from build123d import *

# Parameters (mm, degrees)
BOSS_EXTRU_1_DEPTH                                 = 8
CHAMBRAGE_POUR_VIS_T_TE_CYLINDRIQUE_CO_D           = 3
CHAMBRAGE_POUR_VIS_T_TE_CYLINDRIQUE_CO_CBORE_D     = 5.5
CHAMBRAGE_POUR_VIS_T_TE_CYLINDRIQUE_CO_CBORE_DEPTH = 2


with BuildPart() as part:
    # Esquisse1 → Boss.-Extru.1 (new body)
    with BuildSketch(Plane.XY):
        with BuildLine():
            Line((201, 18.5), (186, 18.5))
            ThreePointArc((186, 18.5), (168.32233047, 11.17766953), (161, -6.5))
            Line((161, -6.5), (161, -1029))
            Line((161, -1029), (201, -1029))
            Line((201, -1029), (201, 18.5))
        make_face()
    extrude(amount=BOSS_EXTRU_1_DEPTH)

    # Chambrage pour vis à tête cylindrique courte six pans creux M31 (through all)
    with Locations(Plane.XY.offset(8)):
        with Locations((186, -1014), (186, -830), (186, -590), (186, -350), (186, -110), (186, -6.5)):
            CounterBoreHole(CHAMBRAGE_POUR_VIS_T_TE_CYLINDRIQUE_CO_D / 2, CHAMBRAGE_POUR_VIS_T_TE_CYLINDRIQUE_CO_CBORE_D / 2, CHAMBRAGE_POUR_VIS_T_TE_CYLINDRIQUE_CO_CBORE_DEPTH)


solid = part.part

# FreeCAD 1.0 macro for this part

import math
import FreeCAD as App
import Part
import Sketcher

V = App.Vector

doc = App.newDocument("Part")
params = doc.addObject("Spreadsheet::Sheet", "Params")
for row, (alias, value) in enumerate([
    ("sketch1_radius", "25 mm"),
    ("sketch1_width", "15 mm"),
    ("sketch1_height", "1022.5 mm"),
    ("pad1_length", "8 mm"),
    ("sketch2_diameter", "3 mm"),
    ("hole_diameter", "3 mm"),
    ("hole_cbore_diameter", "5.5 mm"),
    ("hole_cbore_depth", "2 mm"),
], start=1):
    params.set(f"A{row}", alias)
    params.set(f"B{row}", "=" + value)
    params.setAlias(f"B{row}", alias)

body = doc.addObject("PartDesign::Body", "Body")

# Sketch on XY plane
sketch1 = body.newObject("Sketcher::SketchObject", "Sketch")
sketch1.AttachmentSupport = (doc.getObject("XY_Plane"), [""])
sketch1.MapMode = "FlatFace"
sketch1.addGeometry(Part.LineSegment(V(201, 18, 0), V(186, 18, 0)), False)
sketch1.addGeometry(Part.ArcOfCircle(Part.Circle(V(186, -6, 0), V(0, 0, 1), 25), math.radians(90), math.radians(180)), False)
sketch1.addGeometry(Part.LineSegment(V(161, -6, 0), V(161, -1029, 0)), False)
sketch1.addGeometry(Part.LineSegment(V(161, -1029, 0), V(201, -1029, 0)), False)
sketch1.addGeometry(Part.LineSegment(V(201, -1029, 0), V(201, 18, 0)), False)
sketch1.addConstraint(Sketcher.Constraint("Tangent", 0, 2, 1, 1))
sketch1.addConstraint(Sketcher.Constraint("Tangent", 1, 2, 2, 1))
sketch1.addConstraint(Sketcher.Constraint("Coincident", 2, 2, 3, 1))
sketch1.addConstraint(Sketcher.Constraint("Coincident", 3, 2, 4, 1))
sketch1.addConstraint(Sketcher.Constraint("Coincident", 4, 2, 0, 1))
sketch1.addConstraint(Sketcher.Constraint("Horizontal", 0))
sketch1.addConstraint(Sketcher.Constraint("Vertical", 2))
sketch1.addConstraint(Sketcher.Constraint("Horizontal", 3))
sketch1.addConstraint(Sketcher.Constraint("Vertical", 4))
sketch1.addConstraint(Sketcher.Constraint("Radius", 1, 25.0))
sketch1.addConstraint(Sketcher.Constraint("DistanceX", 0, 2, 0, 1, 15.0))
sketch1.addConstraint(Sketcher.Constraint("DistanceY", 2, 2, 2, 1, 1022.5))
sketch1.addConstraint(Sketcher.Constraint("DistanceX", -1, 1, 1, 3, 186.0))
sketch1.addConstraint(Sketcher.Constraint("DistanceY", 2, 2, -1, 1, 1029.0))
sketch1.setExpression("Constraints[9]", "Params.sketch1_radius")
sketch1.setExpression("Constraints[10]", "Params.sketch1_width")
sketch1.setExpression("Constraints[11]", "Params.sketch1_height")
pad1 = body.newObject("PartDesign::Pad", "Pad")
pad1.Profile = sketch1
pad1.setExpression("Length", "Params.pad1_length")

# Sketch on XY plane
sketch2 = body.newObject("Sketcher::SketchObject", "Sketch001")
sketch2.AttachmentSupport = (doc.getObject("XY_Plane"), [""])
sketch2.MapMode = "FlatFace"
sketch2.AttachmentOffset = App.Placement(V(0, 0, 8), App.Rotation())
sketch2.addGeometry(Part.Circle(V(186, -1014, 0), V(0, 0, 1), 1.5), False)
sketch2.addGeometry(Part.Circle(V(186, -830, 0), V(0, 0, 1), 1.5), False)
sketch2.addGeometry(Part.Circle(V(186, -590, 0), V(0, 0, 1), 1.5), False)
sketch2.addGeometry(Part.Circle(V(186, -350, 0), V(0, 0, 1), 1.5), False)
sketch2.addGeometry(Part.Circle(V(186, -110, 0), V(0, 0, 1), 1.5), False)
sketch2.addGeometry(Part.Circle(V(186, -6.5, 0), V(0, 0, 1), 1.5), False)
sketch2.addConstraint(Sketcher.Constraint("Equal", 0, 1))
sketch2.addConstraint(Sketcher.Constraint("Equal", 1, 2))
sketch2.addConstraint(Sketcher.Constraint("Equal", 2, 3))
sketch2.addConstraint(Sketcher.Constraint("Equal", 3, 4))
sketch2.addConstraint(Sketcher.Constraint("Equal", 4, 5))
sketch2.addConstraint(Sketcher.Constraint("Vertical", 0, 3, 1, 3))
sketch2.addConstraint(Sketcher.Constraint("Vertical", 1, 3, 2, 3))
sketch2.addConstraint(Sketcher.Constraint("Vertical", 2, 3, 3, 3))
sketch2.addConstraint(Sketcher.Constraint("Vertical", 3, 3, 4, 3))
sketch2.addConstraint(Sketcher.Constraint("Vertical", 4, 3, 5, 3))
sketch2.addConstraint(Sketcher.Constraint("Diameter", 0, 3.0))
sketch2.addConstraint(Sketcher.Constraint("DistanceX", -1, 1, 0, 3, 186.0))
sketch2.addConstraint(Sketcher.Constraint("DistanceY", 0, 3, -1, 1, 1014.0))
sketch2.addConstraint(Sketcher.Constraint("DistanceY", 1, 3, -1, 1, 830.0))
sketch2.addConstraint(Sketcher.Constraint("DistanceY", 2, 3, -1, 1, 590.0))
sketch2.addConstraint(Sketcher.Constraint("DistanceY", 3, 3, -1, 1, 350.0))
sketch2.addConstraint(Sketcher.Constraint("DistanceY", 4, 3, -1, 1, 110.0))
sketch2.addConstraint(Sketcher.Constraint("DistanceY", 5, 3, -1, 1, 6.5))
sketch2.setExpression("Constraints[10]", "Params.sketch2_diameter")
doc.recompute()
hole = body.newObject("PartDesign::Hole", "Hole")
hole.Profile = sketch2
hole.ThreadType = "None"
hole.setExpression("Diameter", "Params.hole_diameter")
hole.DepthType = "ThroughAll"
hole.HoleCutType = "Counterbore"
hole.setExpression("HoleCutDiameter", "Params.hole_cbore_diameter")
hole.setExpression("HoleCutDepth", "Params.hole_cbore_depth")

doc.recompute()
